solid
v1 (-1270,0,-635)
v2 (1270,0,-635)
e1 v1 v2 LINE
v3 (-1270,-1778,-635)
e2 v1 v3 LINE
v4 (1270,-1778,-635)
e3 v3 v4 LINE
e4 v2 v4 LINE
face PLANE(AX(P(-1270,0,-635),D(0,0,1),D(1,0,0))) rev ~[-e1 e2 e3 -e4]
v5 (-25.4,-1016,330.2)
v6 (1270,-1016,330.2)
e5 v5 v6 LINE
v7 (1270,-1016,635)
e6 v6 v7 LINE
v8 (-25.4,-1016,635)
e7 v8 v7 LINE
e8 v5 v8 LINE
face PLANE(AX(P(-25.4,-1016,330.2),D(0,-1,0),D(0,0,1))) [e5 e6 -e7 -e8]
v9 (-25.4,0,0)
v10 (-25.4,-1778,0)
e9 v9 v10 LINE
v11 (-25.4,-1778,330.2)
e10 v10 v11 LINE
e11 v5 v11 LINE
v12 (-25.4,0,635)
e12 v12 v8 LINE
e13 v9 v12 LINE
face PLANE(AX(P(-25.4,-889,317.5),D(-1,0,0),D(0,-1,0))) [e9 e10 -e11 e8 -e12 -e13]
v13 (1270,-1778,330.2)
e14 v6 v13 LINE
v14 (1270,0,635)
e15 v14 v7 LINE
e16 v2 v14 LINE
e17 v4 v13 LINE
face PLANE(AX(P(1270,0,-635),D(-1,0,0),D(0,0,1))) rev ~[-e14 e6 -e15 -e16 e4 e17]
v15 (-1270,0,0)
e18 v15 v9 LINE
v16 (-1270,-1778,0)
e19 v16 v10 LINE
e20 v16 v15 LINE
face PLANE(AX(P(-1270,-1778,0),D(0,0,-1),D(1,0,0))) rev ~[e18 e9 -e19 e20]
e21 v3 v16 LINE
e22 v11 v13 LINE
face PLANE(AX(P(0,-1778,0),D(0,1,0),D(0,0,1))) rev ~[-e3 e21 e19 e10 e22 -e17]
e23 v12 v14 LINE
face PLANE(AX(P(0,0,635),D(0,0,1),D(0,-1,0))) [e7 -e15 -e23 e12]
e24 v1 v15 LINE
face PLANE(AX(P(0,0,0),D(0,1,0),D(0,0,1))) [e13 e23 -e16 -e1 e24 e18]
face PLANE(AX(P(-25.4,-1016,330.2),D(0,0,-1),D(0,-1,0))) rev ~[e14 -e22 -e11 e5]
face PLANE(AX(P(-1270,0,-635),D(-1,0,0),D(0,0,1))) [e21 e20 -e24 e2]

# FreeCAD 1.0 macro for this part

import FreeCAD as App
import Part
import Sketcher
from FreeCAD import Vector
Q = App.Units.Quantity

doc = App.newDocument("Part")
params = doc.addObject("Spreadsheet::Sheet", "Params")
for row, (alias, value) in enumerate([
    ("sketch1_width", "100 in"),
    ("sketch1_height", "50 in"),
    ("pad1_length", "70 in"),
    ("sketch2_width", "50 in"),
    ("sketch2_height", "25 in"),
    ("sketch3_width", "70 in"),
    ("sketch3_height", "25 in"),
    ("pad2_length", "1 in"),
    ("sketch4_width", "30 in"),
    ("sketch4_height", "12 in"),
], start=1):
    params.set(f"A{row}", alias)
    params.set(f"B{row}", "=" + value)
    params.setAlias(f"B{row}", alias)

body = doc.addObject("PartDesign::Body", "Body")

sketch1 = doc.addObject("Sketcher::SketchObject", "Sketch")
body.addObject(sketch1)
sketch1.AttachmentSupport = (doc.XZ_Plane, [""])
sketch1.MapMode = "FlatFace"
sketch1.addGeometry(Part.LineSegment(Vector(-1270, 635, 0), Vector(-1270, -635, 0)), False)
sketch1.addGeometry(Part.LineSegment(Vector(-1270, -635, 0), Vector(1270, -635, 0)), False)
sketch1.addGeometry(Part.LineSegment(Vector(1270, -635, 0), Vector(1270, 635, 0)), False)
sketch1.addGeometry(Part.LineSegment(Vector(1270, 635, 0), Vector(-1270, 635, 0)), False)
sketch1.addConstraint(Sketcher.Constraint("Coincident", 0, 2, 1, 1))
sketch1.addConstraint(Sketcher.Constraint("Coincident", 1, 2, 2, 1))
sketch1.addConstraint(Sketcher.Constraint("Coincident", 2, 2, 3, 1))
sketch1.addConstraint(Sketcher.Constraint("Coincident", 3, 2, 0, 1))
sketch1.addConstraint(Sketcher.Constraint("Vertical", 0))
sketch1.addConstraint(Sketcher.Constraint("Horizontal", 1))
sketch1.addConstraint(Sketcher.Constraint("Vertical", 2))
sketch1.addConstraint(Sketcher.Constraint("Horizontal", 3))
sketch1.addConstraint(Sketcher.Constraint("Symmetric", 0, 2, 2, 2, -1, 1))
sketch1.addConstraint(Sketcher.Constraint("DistanceX", 1, 1, 1, 2, Q("100 in")))
sketch1.addConstraint(Sketcher.Constraint("DistanceY", 0, 2, 0, 1, Q("50 in")))
sketch1.setExpression("Constraints[9]", "Params.sketch1_width")
sketch1.setExpression("Constraints[10]", "Params.sketch1_height")
pad1 = doc.addObject("PartDesign::Pad", "Pad")
body.addObject(pad1)
pad1.Profile = sketch1
pad1.setExpression("Length", "Params.pad1_length")

sketch2 = doc.addObject("Sketcher::SketchObject", "Sketch001")
body.addObject(sketch2)
sketch2.AttachmentSupport = (doc.XZ_Plane, [""])
sketch2.MapMode = "FlatFace"
sketch2.AttachmentOffset = App.Placement(Vector(0, 0, 70 * 25.4), App.Rotation())
sketch2.addGeometry(Part.LineSegment(Vector(-1270, 635, 0), Vector(-1270, 0, 0)), False)
sketch2.addGeometry(Part.LineSegment(Vector(-1270, 0, 0), Vector(0, 0, 0)), False)
sketch2.addGeometry(Part.LineSegment(Vector(0, 0, 0), Vector(0, 635, 0)), False)
sketch2.addGeometry(Part.LineSegment(Vector(0, 635, 0), Vector(-1270, 635, 0)), False)
sketch2.addConstraint(Sketcher.Constraint("Coincident", 0, 2, 1, 1))
sketch2.addConstraint(Sketcher.Constraint("Coincident", 1, 2, 2, 1))
sketch2.addConstraint(Sketcher.Constraint("Coincident", 2, 2, 3, 1))
sketch2.addConstraint(Sketcher.Constraint("Coincident", 3, 2, 0, 1))
sketch2.addConstraint(Sketcher.Constraint("Vertical", 0))
sketch2.addConstraint(Sketcher.Constraint("Horizontal", 1))
sketch2.addConstraint(Sketcher.Constraint("Vertical", 2))
sketch2.addConstraint(Sketcher.Constraint("Horizontal", 3))
sketch2.addConstraint(Sketcher.Constraint("Coincident", 1, 2, -1, 1))
sketch2.addConstraint(Sketcher.Constraint("DistanceX", 1, 1, 1, 2, Q("50 in")))
sketch2.addConstraint(Sketcher.Constraint("DistanceY", 0, 2, 0, 1, Q("25 in")))
sketch2.setExpression("Constraints[9]", "Params.sketch2_width")
sketch2.setExpression("Constraints[10]", "Params.sketch2_height")
pocket1 = doc.addObject("PartDesign::Pocket", "Pocket")
body.addObject(pocket1)
pocket1.Profile = sketch2
pocket1.Type = "ThroughAll"

sketch3 = doc.addObject("Sketcher::SketchObject", "Sketch002")
body.addObject(sketch3)
sketch3.AttachmentSupport = (doc.YZ_Plane, [""])
sketch3.MapMode = "FlatFace"
sketch3.addGeometry(Part.LineSegment(Vector(0, 635, 0), Vector(0, 0, 0)), False)
sketch3.addGeometry(Part.LineSegment(Vector(0, 0, 0), Vector(-1778, 0, 0)), False)
sketch3.addGeometry(Part.LineSegment(Vector(-1778, 0, 0), Vector(-1778, 635, 0)), False)
sketch3.addGeometry(Part.LineSegment(Vector(-1778, 635, 0), Vector(0, 635, 0)), False)
sketch3.addConstraint(Sketcher.Constraint("Coincident", 0, 2, 1, 1))
sketch3.addConstraint(Sketcher.Constraint("Coincident", 1, 2, 2, 1))
sketch3.addConstraint(Sketcher.Constraint("Coincident", 2, 2, 3, 1))
sketch3.addConstraint(Sketcher.Constraint("Coincident", 3, 2, 0, 1))
sketch3.addConstraint(Sketcher.Constraint("Vertical", 0))
sketch3.addConstraint(Sketcher.Constraint("Horizontal", 1))
sketch3.addConstraint(Sketcher.Constraint("Vertical", 2))
sketch3.addConstraint(Sketcher.Constraint("Horizontal", 3))
sketch3.addConstraint(Sketcher.Constraint("Coincident", 0, 2, -1, 1))
sketch3.addConstraint(Sketcher.Constraint("DistanceX", 1, 2, 1, 1, Q("70 in")))
sketch3.addConstraint(Sketcher.Constraint("DistanceY", 0, 2, 0, 1, Q("25 in")))
sketch3.setExpression("Constraints[9]", "Params.sketch3_width")
sketch3.setExpression("Constraints[10]", "Params.sketch3_height")
pad2 = doc.addObject("PartDesign::Pad", "Pad001")
body.addObject(pad2)
pad2.Profile = sketch3
pad2.setExpression("Length", "Params.pad2_length")
pad2.Reversed = True

sketch4 = doc.addObject("Sketcher::SketchObject", "Sketch003")
body.addObject(sketch4)
sketch4.AttachmentSupport = (doc.YZ_Plane, [""])
sketch4.MapMode = "FlatFace"
sketch4.AttachmentOffset = App.Placement(Vector(0, 0, -1 * 25.4), App.Rotation())
sketch4.addGeometry(Part.LineSegment(Vector(-1016, 635, 0), Vector(-1016, 330, 0)), False)
sketch4.addGeometry(Part.LineSegment(Vector(-1016, 330, 0), Vector(-1778, 330, 0)), False)
sketch4.addGeometry(Part.LineSegment(Vector(-1778, 330, 0), Vector(-1778, 635, 0)), False)
sketch4.addGeometry(Part.LineSegment(Vector(-1778, 635, 0), Vector(-1016, 635, 0)), False)
sketch4.addConstraint(Sketcher.Constraint("Coincident", 0, 2, 1, 1))
sketch4.addConstraint(Sketcher.Constraint("Coincident", 1, 2, 2, 1))
sketch4.addConstraint(Sketcher.Constraint("Coincident", 2, 2, 3, 1))
sketch4.addConstraint(Sketcher.Constraint("Coincident", 3, 2, 0, 1))
sketch4.addConstraint(Sketcher.Constraint("Vertical", 0))
sketch4.addConstraint(Sketcher.Constraint("Horizontal", 1))
sketch4.addConstraint(Sketcher.Constraint("Vertical", 2))
sketch4.addConstraint(Sketcher.Constraint("Horizontal", 3))
sketch4.addConstraint(Sketcher.Constraint("DistanceX", 1, 2, 1, 1, Q("30 in")))
sketch4.addConstraint(Sketcher.Constraint("DistanceY", 0, 2, 0, 1, Q("12 in")))
sketch4.addConstraint(Sketcher.Constraint("DistanceX", 0, 2, -1, 1, Q("40 in")))
sketch4.addConstraint(Sketcher.Constraint("DistanceY", -1, 1, 0, 2, Q("13 in")))
sketch4.setExpression("Constraints[8]", "Params.sketch4_width")
sketch4.setExpression("Constraints[9]", "Params.sketch4_height")
pocket2 = doc.addObject("PartDesign::Pocket", "Pocket001")
body.addObject(pocket2)
pocket2.Profile = sketch4
pocket2.Type = "ThroughAll"
pocket2.Reversed = True

doc.recompute()
